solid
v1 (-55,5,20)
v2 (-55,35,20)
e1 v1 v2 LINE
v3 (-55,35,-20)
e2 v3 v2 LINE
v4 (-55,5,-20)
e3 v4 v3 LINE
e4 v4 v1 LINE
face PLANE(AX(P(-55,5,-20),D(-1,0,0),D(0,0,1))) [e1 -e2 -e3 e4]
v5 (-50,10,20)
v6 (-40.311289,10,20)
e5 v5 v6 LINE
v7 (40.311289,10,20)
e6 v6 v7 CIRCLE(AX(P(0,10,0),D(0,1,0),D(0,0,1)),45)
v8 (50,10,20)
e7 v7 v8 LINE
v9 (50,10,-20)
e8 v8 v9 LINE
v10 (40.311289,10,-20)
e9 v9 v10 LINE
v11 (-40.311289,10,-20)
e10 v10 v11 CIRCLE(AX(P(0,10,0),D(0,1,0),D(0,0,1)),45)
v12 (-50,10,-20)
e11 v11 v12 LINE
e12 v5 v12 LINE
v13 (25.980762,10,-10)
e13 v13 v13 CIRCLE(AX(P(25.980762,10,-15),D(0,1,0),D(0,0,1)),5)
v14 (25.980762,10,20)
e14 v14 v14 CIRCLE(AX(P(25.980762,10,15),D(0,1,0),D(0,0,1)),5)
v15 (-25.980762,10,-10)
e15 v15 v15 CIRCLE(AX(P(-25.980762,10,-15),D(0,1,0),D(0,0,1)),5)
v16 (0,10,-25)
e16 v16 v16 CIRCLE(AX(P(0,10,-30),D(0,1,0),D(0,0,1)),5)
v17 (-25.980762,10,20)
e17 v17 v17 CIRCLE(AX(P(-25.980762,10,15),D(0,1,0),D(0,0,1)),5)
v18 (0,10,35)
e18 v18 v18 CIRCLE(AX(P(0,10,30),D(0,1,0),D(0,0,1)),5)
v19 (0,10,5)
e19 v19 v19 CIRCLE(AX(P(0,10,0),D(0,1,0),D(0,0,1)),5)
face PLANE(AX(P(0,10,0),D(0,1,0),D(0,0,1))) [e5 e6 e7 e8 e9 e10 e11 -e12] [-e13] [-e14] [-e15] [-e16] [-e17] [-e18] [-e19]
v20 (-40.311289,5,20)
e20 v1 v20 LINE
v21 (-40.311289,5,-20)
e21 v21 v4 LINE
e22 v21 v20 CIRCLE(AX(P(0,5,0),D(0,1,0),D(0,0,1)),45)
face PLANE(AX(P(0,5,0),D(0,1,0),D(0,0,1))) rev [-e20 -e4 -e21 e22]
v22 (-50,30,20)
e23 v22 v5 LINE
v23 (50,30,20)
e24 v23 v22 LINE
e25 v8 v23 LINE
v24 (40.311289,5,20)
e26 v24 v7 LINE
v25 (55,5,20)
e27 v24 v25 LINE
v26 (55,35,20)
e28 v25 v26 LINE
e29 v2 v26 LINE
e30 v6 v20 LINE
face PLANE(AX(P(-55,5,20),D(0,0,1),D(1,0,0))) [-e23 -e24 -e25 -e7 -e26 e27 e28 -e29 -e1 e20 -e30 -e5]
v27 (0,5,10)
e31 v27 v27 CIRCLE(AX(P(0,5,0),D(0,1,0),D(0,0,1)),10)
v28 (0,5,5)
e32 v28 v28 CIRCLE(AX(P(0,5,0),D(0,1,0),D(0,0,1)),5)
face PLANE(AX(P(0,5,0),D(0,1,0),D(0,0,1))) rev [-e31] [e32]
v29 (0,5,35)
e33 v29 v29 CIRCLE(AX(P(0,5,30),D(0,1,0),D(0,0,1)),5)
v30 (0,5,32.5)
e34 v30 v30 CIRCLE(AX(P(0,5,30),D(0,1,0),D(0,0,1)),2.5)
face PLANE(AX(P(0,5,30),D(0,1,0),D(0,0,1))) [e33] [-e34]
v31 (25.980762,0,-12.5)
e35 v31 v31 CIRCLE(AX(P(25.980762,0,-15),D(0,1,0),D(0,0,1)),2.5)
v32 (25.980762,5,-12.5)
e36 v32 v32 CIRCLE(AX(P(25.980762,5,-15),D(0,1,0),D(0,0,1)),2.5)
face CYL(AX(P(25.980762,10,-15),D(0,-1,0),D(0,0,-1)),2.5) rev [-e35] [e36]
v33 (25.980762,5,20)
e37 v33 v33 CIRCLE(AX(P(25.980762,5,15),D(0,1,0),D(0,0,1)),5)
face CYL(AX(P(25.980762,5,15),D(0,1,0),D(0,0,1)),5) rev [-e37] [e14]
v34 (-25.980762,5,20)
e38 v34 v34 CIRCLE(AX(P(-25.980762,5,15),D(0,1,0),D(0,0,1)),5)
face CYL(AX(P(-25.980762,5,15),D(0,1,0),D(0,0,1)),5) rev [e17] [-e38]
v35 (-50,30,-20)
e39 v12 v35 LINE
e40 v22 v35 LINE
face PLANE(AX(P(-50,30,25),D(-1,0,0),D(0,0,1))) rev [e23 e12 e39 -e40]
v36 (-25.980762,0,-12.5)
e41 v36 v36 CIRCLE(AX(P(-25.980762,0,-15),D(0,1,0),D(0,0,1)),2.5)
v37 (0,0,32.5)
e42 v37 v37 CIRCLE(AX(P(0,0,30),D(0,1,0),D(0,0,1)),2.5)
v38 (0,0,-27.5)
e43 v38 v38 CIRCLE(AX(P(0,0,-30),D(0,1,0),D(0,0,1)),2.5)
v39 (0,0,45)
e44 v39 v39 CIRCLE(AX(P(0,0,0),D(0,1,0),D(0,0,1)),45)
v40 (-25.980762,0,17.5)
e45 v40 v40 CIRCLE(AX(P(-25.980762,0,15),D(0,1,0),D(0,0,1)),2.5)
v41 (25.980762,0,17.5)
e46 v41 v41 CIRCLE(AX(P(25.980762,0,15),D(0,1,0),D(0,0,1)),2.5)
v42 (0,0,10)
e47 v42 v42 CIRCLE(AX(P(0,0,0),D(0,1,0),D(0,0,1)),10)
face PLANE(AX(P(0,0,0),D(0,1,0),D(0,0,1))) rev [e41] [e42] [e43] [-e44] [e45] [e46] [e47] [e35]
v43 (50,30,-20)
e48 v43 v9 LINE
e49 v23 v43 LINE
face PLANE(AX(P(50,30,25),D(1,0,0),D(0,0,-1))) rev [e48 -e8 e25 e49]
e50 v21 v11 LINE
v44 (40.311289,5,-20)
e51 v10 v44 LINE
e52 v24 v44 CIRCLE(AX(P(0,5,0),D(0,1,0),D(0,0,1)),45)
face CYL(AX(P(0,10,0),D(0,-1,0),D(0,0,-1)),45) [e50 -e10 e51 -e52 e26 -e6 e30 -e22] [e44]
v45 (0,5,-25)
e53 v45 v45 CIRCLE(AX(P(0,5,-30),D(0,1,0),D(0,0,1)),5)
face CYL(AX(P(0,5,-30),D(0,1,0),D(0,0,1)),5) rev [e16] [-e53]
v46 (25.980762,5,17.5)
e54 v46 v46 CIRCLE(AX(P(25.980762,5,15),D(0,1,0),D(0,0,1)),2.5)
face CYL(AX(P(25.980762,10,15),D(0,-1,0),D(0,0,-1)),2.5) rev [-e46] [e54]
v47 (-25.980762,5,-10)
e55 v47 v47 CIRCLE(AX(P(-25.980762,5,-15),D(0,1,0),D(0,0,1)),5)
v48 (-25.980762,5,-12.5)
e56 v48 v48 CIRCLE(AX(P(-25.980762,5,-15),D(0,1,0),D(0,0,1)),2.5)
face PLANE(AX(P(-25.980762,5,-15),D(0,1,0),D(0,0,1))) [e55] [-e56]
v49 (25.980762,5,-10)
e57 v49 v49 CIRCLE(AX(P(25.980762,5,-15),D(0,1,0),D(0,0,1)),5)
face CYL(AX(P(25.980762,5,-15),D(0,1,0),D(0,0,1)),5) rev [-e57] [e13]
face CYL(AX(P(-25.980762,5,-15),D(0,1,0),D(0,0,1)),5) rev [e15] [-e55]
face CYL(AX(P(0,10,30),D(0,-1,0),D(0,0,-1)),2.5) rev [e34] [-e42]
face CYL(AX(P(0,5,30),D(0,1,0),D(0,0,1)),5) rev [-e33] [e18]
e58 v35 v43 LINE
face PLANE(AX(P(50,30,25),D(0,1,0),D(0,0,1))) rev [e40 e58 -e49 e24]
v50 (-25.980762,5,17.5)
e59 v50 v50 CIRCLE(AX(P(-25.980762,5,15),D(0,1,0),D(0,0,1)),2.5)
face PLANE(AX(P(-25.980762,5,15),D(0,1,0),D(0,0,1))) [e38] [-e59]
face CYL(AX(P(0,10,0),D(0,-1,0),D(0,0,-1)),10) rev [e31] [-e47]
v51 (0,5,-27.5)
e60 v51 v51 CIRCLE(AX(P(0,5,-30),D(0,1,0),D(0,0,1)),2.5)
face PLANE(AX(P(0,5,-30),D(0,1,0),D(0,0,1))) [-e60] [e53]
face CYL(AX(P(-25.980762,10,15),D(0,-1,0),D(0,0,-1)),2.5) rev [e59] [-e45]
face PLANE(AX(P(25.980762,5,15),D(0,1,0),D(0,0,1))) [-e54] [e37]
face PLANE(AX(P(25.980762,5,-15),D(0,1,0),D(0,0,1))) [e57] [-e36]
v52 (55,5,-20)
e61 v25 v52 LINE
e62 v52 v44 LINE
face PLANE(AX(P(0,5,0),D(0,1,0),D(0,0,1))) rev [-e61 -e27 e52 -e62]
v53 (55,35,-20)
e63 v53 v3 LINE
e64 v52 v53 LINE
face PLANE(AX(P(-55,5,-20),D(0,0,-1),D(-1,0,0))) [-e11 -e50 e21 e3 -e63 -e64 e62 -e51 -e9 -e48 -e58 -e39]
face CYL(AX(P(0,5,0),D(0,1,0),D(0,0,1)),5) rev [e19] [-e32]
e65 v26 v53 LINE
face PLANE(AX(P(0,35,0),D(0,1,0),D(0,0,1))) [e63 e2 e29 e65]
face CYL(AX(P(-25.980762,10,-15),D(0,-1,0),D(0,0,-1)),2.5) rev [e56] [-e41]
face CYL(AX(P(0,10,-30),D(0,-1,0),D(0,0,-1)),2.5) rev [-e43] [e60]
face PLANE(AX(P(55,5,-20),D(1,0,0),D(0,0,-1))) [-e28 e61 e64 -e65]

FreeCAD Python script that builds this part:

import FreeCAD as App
import Part
import Sketcher
from FreeCAD import Vector

doc = App.newDocument("Part")
body = doc.addObject("PartDesign::Body", "Body")

sketch1 = doc.addObject("Sketcher::SketchObject", "Sketch")
body.addObject(sketch1)
sketch1.AttachmentSupport = (doc.XZ_Plane, [""])
sketch1.MapMode = "FlatFace"
sketch1.addGeometry(Part.Circle(Vector(0, 0, 0), Vector(0, 0, 1), 45), False)
sketch1.addGeometry(Part.Circle(Vector(0, 30, 0), Vector(0, 0, 1), 2.5), False)
sketch1.addGeometry(Part.Circle(Vector(-25.980762, 15, 0), Vector(0, 0, 1), 2.5), False)
sketch1.addGeometry(Part.Circle(Vector(25.980762, 15, 0), Vector(0, 0, 1), 2.5), False)
sketch1.addGeometry(Part.Circle(Vector(-25.980762, -15, 0), Vector(0, 0, 1), 2.5), False)
sketch1.addGeometry(Part.Circle(Vector(0, 0, 0), Vector(0, 0, 1), 10), False)
sketch1.addGeometry(Part.Circle(Vector(0, -30, 0), Vector(0, 0, 1), 2.5), False)
sketch1.addGeometry(Part.Circle(Vector(25.980762, -15, 0), Vector(0, 0, 1), 2.5), False)
sketch1.addConstraint(Sketcher.Constraint("Coincident", 0, 3, -1, 1))
sketch1.addConstraint(Sketcher.Constraint("Coincident", 5, 3, -1, 1))
sketch1.addConstraint(Sketcher.Constraint("Equal", 1, 2))
sketch1.addConstraint(Sketcher.Constraint("Equal", 2, 3))
sketch1.addConstraint(Sketcher.Constraint("Equal", 3, 4))
sketch1.addConstraint(Sketcher.Constraint("Equal", 4, 6))
sketch1.addConstraint(Sketcher.Constraint("Equal", 6, 7))
sketch1.addConstraint(Sketcher.Constraint("Symmetric", 3, 3, 4, 3, -1, 1))
sketch1.addConstraint(Sketcher.Constraint("Symmetric", 1, 3, 6, 3, -1, 1))
sketch1.addConstraint(Sketcher.Constraint("Symmetric", 2, 3, 7, 3, -1, 1))
sketch1.addConstraint(Sketcher.Constraint("Symmetric", 2, 3, 3, 3, -2))
sketch1.addConstraint(Sketcher.Constraint("PointOnObject", 1, 3, -2))
sketch1.addConstraint(Sketcher.Constraint("Diameter", 0, 90.0))
sketch1.addConstraint(Sketcher.Constraint("Diameter", 1, 5.0))
sketch1.addConstraint(Sketcher.Constraint("Diameter", 5, 20.0))
sketch1.addConstraint(Sketcher.Constraint("DistanceY", -1, 1, 1, 3, 30.0))
sketch1.addConstraint(Sketcher.Constraint("DistanceY", -1, 1, 2, 3, 15.0))
sketch1.addConstraint(Sketcher.Constraint("DistanceX", 2, 3, -1, 1, 25.980762))
pad1 = doc.addObject("PartDesign::Pad", "Pad")
body.addObject(pad1)
pad1.Profile = sketch1
pad1.Length = 10
pad1.Reversed = True

sketch2 = doc.addObject("Sketcher::SketchObject", "Sketch001")
body.addObject(sketch2)
sketch2.AttachmentSupport = (doc.XZ_Plane, [""])
sketch2.MapMode = "FlatFace"
sketch2.AttachmentOffset = App.Placement(Vector(0, 0, -10), App.Rotation())
sketch2.addGeometry(Part.LineSegment(Vector(-55, -20, 0), Vector(-55, 20, 0)), False)
sketch2.addGeometry(Part.LineSegment(Vector(-55, 20, 0), Vector(55, 20, 0)), False)
sketch2.addGeometry(Part.LineSegment(Vector(55, 20, 0), Vector(55, -20, 0)), False)
sketch2.addGeometry(Part.LineSegment(Vector(55, -20, 0), Vector(-55, -20, 0)), False)
sketch2.addConstraint(Sketcher.Constraint("Coincident", 0, 2, 1, 1))
sketch2.addConstraint(Sketcher.Constraint("Coincident", 1, 2, 2, 1))
sketch2.addConstraint(Sketcher.Constraint("Coincident", 2, 2, 3, 1))
sketch2.addConstraint(Sketcher.Constraint("Coincident", 3, 2, 0, 1))
sketch2.addConstraint(Sketcher.Constraint("Vertical", 0))
sketch2.addConstraint(Sketcher.Constraint("Horizontal", 1))
sketch2.addConstraint(Sketcher.Constraint("Vertical", 2))
sketch2.addConstraint(Sketcher.Constraint("Horizontal", 3))
sketch2.addConstraint(Sketcher.Constraint("Symmetric", 0, 2, 2, 2, -1, 1))
sketch2.addConstraint(Sketcher.Constraint("DistanceX", 1, 1, 1, 2, 110.0))
sketch2.addConstraint(Sketcher.Constraint("DistanceY", 0, 1, 0, 2, 40.0))
pad2 = doc.addObject("PartDesign::Pad", "Pad001")
body.addObject(pad2)
pad2.Profile = sketch2
pad2.Type = "TwoLengths"
pad2.Length = 25
pad2.Length2 = 5
pad2.Reversed = True

sketch3 = doc.addObject("Sketcher::SketchObject", "Sketch002")
body.addObject(sketch3)
sketch3.AttachmentSupport = (doc.XY_Plane, [""])
sketch3.MapMode = "FlatFace"
sketch3.AttachmentOffset = App.Placement(Vector(0, 0, -20), App.Rotation())
sketch3.addGeometry(Part.LineSegment(Vector(50, 30, 0), Vector(50, 10, 0)), False)
sketch3.addGeometry(Part.LineSegment(Vector(50, 10, 0), Vector(-50, 10, 0)), False)
sketch3.addGeometry(Part.LineSegment(Vector(-50, 10, 0), Vector(-50, 30, 0)), False)
sketch3.addGeometry(Part.LineSegment(Vector(-50, 30, 0), Vector(50, 30, 0)), False)
sketch3.addConstraint(Sketcher.Constraint("Coincident", 0, 2, 1, 1))
sketch3.addConstraint(Sketcher.Constraint("Coincident", 1, 2, 2, 1))
sketch3.addConstraint(Sketcher.Constraint("Coincident", 2, 2, 3, 1))
sketch3.addConstraint(Sketcher.Constraint("Coincident", 3, 2, 0, 1))
sketch3.addConstraint(Sketcher.Constraint("Vertical", 0))
sketch3.addConstraint(Sketcher.Constraint("Horizontal", 1))
sketch3.addConstraint(Sketcher.Constraint("Vertical", 2))
sketch3.addConstraint(Sketcher.Constraint("Horizontal", 3))
sketch3.addConstraint(Sketcher.Constraint("DistanceX", 1, 2, 1, 1, 100.0))
sketch3.addConstraint(Sketcher.Constraint("DistanceY", 0, 2, 0, 1, 20.0))
sketch3.addConstraint(Sketcher.Constraint("DistanceX", -1, 1, 0, 2, 50.0))
sketch3.addConstraint(Sketcher.Constraint("DistanceY", -1, 1, 0, 2, 10.0))
pocket1 = doc.addObject("PartDesign::Pocket", "Pocket")
body.addObject(pocket1)
pocket1.Profile = sketch3
pocket1.Length = 45
pocket1.Reversed = True

sketch4 = doc.addObject("Sketcher::SketchObject", "Sketch003")
body.addObject(sketch4)
sketch4.AttachmentSupport = (doc.XZ_Plane, [""])
sketch4.MapMode = "FlatFace"
sketch4.AttachmentOffset = App.Placement(Vector(0, 0, -10), App.Rotation())
sketch4.addGeometry(Part.Circle(Vector(0, -30, 0), Vector(0, 0, 1), 5), False)
sketch4.addGeometry(Part.Circle(Vector(25.980762, -15, 0), Vector(0, 0, 1), 5), False)
sketch4.addGeometry(Part.Circle(Vector(25.980762, 15, 0), Vector(0, 0, 1), 5), False)
sketch4.addGeometry(Part.Circle(Vector(0, 30, 0), Vector(0, 0, 1), 5), False)
sketch4.addGeometry(Part.Circle(Vector(-25.980762, 15, 0), Vector(0, 0, 1), 5), False)
sketch4.addGeometry(Part.Circle(Vector(-25.980762, -15, 0), Vector(0, 0, 1), 5), False)
sketch4.addGeometry(Part.Circle(Vector(0, 0, 0), Vector(0, 0, 1), 5), False)
sketch4.addConstraint(Sketcher.Constraint("Coincident", 6, 3, -1, 1))
sketch4.addConstraint(Sketcher.Constraint("Equal", 0, 1))
sketch4.addConstraint(Sketcher.Constraint("Equal", 1, 2))
sketch4.addConstraint(Sketcher.Constraint("Equal", 2, 3))
sketch4.addConstraint(Sketcher.Constraint("Equal", 3, 4))
sketch4.addConstraint(Sketcher.Constraint("Equal", 4, 5))
sketch4.addConstraint(Sketcher.Constraint("Equal", 5, 6))
sketch4.addConstraint(Sketcher.Constraint("Symmetric", 0, 3, 3, 3, -1, 1))
sketch4.addConstraint(Sketcher.Constraint("Symmetric", 1, 3, 4, 3, -1, 1))
sketch4.addConstraint(Sketcher.Constraint("Symmetric", 2, 3, 5, 3, -1, 1))
sketch4.addConstraint(Sketcher.Constraint("Symmetric", 2, 3, 4, 3, -2))
sketch4.addConstraint(Sketcher.Constraint("PointOnObject", 0, 3, -2))
sketch4.addConstraint(Sketcher.Constraint("Diameter", 0, 10.0))
sketch4.addConstraint(Sketcher.Constraint("DistanceY", 0, 3, -1, 1, 30.0))
sketch4.addConstraint(Sketcher.Constraint("DistanceY", 1, 3, -1, 1, 15.0))
sketch4.addConstraint(Sketcher.Constraint("DistanceX", -1, 1, 1, 3, 25.980762))
pocket2 = doc.addObject("PartDesign::Pocket", "Pocket001")
body.addObject(pocket2)
pocket2.Profile = sketch4
pocket2.Length = 5
pocket2.Reversed = True

doc.recompute()
